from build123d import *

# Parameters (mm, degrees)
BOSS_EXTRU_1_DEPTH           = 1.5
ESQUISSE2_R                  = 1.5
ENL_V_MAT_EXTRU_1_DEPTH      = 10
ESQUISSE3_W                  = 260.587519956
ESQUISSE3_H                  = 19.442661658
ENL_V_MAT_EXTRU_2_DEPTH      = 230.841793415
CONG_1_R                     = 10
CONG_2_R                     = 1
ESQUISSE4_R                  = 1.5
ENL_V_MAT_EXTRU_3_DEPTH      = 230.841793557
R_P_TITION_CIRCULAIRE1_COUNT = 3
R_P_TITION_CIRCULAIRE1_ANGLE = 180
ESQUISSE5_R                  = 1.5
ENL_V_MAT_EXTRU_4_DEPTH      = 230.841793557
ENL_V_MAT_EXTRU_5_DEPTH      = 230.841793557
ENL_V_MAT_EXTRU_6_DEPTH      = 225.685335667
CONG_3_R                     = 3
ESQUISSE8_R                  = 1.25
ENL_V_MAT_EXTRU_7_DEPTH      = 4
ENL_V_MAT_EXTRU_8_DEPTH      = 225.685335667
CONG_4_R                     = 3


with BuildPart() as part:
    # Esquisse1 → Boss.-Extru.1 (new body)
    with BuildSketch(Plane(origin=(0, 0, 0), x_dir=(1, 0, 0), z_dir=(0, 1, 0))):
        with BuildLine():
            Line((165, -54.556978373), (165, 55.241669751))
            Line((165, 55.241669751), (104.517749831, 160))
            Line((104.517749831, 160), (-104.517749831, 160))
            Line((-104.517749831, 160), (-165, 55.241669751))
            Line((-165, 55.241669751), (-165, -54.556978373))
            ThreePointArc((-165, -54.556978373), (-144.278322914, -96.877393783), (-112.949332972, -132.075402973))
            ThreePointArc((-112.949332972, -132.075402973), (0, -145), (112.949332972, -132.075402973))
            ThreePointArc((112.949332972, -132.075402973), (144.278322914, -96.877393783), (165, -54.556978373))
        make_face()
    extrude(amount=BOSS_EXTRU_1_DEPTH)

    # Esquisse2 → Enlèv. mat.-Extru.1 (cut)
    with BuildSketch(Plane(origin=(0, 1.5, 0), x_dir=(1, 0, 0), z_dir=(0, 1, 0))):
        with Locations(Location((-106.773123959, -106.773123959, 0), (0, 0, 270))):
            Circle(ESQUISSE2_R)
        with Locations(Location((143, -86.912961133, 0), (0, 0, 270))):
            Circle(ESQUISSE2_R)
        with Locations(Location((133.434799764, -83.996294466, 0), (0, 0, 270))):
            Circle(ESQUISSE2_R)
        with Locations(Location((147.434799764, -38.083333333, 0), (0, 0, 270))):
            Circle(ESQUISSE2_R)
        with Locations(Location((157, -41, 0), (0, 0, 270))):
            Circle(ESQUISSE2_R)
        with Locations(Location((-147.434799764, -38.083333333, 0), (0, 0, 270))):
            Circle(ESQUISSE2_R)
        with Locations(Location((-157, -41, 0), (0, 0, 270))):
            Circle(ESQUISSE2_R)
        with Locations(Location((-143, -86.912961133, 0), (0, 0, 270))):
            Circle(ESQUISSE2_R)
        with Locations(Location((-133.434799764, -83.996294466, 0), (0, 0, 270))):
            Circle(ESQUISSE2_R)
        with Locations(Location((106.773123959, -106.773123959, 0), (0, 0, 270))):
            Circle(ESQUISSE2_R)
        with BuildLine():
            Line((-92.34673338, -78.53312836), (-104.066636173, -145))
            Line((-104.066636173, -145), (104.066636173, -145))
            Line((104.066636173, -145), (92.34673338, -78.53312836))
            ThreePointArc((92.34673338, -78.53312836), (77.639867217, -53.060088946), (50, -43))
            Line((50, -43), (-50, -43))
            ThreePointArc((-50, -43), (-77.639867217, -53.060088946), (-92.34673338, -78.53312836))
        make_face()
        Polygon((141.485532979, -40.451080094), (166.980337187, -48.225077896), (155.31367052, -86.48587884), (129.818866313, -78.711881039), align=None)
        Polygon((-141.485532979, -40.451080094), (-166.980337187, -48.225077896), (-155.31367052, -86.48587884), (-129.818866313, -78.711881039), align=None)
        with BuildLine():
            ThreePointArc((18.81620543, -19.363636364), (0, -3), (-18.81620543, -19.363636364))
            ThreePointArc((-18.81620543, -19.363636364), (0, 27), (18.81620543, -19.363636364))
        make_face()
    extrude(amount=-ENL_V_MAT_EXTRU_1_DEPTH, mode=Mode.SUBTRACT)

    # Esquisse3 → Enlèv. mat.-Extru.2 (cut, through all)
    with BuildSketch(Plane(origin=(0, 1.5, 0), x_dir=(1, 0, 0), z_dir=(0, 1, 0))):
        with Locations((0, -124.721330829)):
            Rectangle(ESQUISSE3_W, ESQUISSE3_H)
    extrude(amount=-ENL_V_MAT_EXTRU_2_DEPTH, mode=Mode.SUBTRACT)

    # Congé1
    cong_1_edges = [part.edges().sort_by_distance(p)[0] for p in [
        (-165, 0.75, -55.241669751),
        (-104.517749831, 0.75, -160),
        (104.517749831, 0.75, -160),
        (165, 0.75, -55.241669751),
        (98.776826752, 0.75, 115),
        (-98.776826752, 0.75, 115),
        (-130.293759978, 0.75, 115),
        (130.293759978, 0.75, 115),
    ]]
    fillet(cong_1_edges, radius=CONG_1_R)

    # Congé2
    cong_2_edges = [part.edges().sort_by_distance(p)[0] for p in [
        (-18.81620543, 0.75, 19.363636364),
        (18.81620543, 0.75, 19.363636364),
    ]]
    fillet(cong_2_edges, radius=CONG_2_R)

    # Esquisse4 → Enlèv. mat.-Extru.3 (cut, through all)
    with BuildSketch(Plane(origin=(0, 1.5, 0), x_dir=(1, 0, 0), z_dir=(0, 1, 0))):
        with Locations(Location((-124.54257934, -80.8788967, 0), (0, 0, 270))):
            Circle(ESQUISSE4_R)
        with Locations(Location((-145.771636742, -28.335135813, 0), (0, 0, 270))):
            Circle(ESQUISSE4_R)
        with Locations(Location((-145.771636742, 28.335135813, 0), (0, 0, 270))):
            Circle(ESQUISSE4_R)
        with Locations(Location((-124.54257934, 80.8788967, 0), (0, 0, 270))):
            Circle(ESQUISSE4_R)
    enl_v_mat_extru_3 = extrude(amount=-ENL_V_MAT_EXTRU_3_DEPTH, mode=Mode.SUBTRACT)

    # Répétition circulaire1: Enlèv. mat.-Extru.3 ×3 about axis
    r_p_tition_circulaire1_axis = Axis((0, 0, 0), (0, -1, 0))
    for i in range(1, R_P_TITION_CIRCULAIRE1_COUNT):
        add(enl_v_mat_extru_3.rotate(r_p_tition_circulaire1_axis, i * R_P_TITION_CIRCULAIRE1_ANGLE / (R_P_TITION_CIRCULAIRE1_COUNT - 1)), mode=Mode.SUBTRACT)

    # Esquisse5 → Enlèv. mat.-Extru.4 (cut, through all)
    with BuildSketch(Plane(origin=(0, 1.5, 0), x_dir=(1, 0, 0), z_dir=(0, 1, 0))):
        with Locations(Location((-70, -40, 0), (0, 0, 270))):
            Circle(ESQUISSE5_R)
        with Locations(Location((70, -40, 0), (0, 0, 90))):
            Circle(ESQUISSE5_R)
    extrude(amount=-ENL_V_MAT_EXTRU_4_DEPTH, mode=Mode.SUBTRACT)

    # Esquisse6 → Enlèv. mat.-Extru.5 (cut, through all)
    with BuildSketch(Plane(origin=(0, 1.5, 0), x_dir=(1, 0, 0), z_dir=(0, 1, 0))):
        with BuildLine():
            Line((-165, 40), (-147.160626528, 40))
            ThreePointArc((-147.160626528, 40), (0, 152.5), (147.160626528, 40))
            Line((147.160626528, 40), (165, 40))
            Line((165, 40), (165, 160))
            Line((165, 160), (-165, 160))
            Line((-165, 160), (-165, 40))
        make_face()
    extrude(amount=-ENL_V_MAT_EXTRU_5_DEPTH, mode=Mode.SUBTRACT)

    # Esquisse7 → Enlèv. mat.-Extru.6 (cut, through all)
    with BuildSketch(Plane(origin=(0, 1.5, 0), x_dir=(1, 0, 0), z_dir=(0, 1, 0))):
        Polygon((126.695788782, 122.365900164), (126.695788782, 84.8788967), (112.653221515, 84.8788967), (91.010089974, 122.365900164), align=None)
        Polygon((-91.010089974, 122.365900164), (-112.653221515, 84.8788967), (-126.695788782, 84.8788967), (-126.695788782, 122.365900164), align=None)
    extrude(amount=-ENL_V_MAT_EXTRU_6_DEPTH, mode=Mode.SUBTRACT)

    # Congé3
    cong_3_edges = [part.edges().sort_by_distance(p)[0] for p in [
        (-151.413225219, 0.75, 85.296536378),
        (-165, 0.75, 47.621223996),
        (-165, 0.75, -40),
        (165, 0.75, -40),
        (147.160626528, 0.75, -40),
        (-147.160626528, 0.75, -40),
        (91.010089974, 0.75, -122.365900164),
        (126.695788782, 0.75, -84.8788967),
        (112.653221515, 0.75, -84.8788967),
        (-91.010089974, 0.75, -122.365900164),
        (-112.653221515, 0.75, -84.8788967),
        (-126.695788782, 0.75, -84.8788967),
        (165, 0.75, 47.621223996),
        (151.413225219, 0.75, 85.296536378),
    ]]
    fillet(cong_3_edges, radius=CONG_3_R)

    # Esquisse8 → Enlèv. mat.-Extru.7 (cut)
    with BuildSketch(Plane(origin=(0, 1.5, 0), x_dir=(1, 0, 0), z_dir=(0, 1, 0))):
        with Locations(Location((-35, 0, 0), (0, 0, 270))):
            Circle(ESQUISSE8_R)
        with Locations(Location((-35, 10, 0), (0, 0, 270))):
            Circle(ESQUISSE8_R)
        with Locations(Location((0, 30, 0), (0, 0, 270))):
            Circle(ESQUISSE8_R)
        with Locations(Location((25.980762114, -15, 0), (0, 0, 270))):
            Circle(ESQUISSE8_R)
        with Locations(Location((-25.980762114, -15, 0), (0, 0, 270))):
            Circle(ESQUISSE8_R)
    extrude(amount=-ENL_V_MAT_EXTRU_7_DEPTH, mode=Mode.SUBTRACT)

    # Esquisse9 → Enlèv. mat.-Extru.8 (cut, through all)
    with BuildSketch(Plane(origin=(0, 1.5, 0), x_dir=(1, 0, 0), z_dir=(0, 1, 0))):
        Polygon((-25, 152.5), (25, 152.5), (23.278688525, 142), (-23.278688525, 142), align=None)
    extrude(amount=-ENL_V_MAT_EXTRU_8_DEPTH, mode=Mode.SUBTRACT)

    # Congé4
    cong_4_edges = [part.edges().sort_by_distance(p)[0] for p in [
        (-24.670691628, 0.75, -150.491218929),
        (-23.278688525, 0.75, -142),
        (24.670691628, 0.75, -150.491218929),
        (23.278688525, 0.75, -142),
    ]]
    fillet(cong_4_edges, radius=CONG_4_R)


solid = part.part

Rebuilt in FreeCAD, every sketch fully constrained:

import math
import FreeCAD as App
import Part
import Sketcher
from FreeCAD import Vector
Q = App.Units.Quantity


def edges_at(feature, points):
    """Names of the edges that pass closest to the given points."""
    edges = feature.Shape.Edges
    near = lambda p: min(range(len(edges)), key=lambda i: edges[i].distToShape(Part.Vertex(*p))[0])
    return sorted({f"Edge{near(p) + 1}" for p in points})


def add_polygon(sketch, points):
    """Adds a closed chain of lines whose ends are joined by coincident constraints."""
    first, n = sketch.GeometryCount, len(points)
    for a, b in zip(points, points[1:] + points[:1]):
        sketch.addGeometry(Part.LineSegment(App.Vector(*a, 0), App.Vector(*b, 0)), False)
    for i in range(n):
        sketch.addConstraint(Sketcher.Constraint("Coincident", first + i, 2, first + (i + 1) % n, 1))

doc = App.newDocument("Part")
body = doc.addObject("PartDesign::Body", "Body")

# Sketch on XZ plane
sketch1 = doc.addObject("Sketcher::SketchObject", "Sketch")
body.addObject(sketch1)
sketch1.AttachmentSupport = (doc.XZ_Plane, [""])
sketch1.MapMode = "FlatFace"
sketch1.addGeometry(Part.LineSegment(Vector(165, 55, 0), Vector(165, -55, 0)), False)
sketch1.addGeometry(Part.LineSegment(Vector(165, -55, 0), Vector(105, -160, 0)), False)
sketch1.addGeometry(Part.LineSegment(Vector(105, -160, 0), Vector(-105, -160, 0)), False)
sketch1.addGeometry(Part.LineSegment(Vector(-105, -160, 0), Vector(-165, -55, 0)), False)
sketch1.addGeometry(Part.LineSegment(Vector(-165, -55, 0), Vector(-165, 55, 0)), False)
sketch1.addGeometry(Part.ArcOfCircle(Part.Circle(Vector(0, 0, 0), Vector(0, 0, 1), 174), math.radians(131), math.radians(162)), False)
sketch1.addGeometry(Part.ArcOfCircle(Part.Circle(Vector(0, -355, 0), Vector(0, 0, 1), 500), math.radians(77), math.radians(103)), False)
sketch1.addGeometry(Part.ArcOfCircle(Part.Circle(Vector(0, 0, 0), Vector(0, 0, 1), 174), math.radians(18), math.radians(49)), False)
sketch1.addConstraint(Sketcher.Constraint("Coincident", 0, 2, 1, 1))
sketch1.addConstraint(Sketcher.Constraint("Coincident", 1, 2, 2, 1))
sketch1.addConstraint(Sketcher.Constraint("Coincident", 2, 2, 3, 1))
sketch1.addConstraint(Sketcher.Constraint("Coincident", 3, 2, 4, 1))
sketch1.addConstraint(Sketcher.Constraint("Coincident", 4, 2, 5, 2))
sketch1.addConstraint(Sketcher.Constraint("Coincident", 5, 1, 6, 2))
sketch1.addConstraint(Sketcher.Constraint("Coincident", 6, 1, 7, 2))
sketch1.addConstraint(Sketcher.Constraint("Coincident", 7, 1, 0, 1))
sketch1.addConstraint(Sketcher.Constraint("Vertical", 0))
sketch1.addConstraint(Sketcher.Constraint("Horizontal", 2))
sketch1.addConstraint(Sketcher.Constraint("Vertical", 4))
sketch1.addConstraint(Sketcher.Constraint("Coincident", 5, 3, -1, 1))
sketch1.addConstraint(Sketcher.Constraint("Coincident", 7, 3, -1, 1))
sketch1.addConstraint(Sketcher.Constraint("Equal", 5, 7))
sketch1.addConstraint(Sketcher.Constraint("Symmetric", 0, 2, 3, 2, -2))
sketch1.addConstraint(Sketcher.Constraint("PointOnObject", 6, 3, -2))
sketch1.addConstraint(Sketcher.Constraint("Equal", 1, 3))
sketch1.addConstraint(Sketcher.Constraint("Radius", 6, Q("500 mm")))
sketch1.addConstraint(Sketcher.Constraint("Angle", 1, Q("-120 deg")))
sketch1.addConstraint(Sketcher.Constraint("DistanceY", 6, 3, -1, 1, Q("355 mm")))
sketch1.addConstraint(Sketcher.Constraint("DistanceX", -1, 1, 0, 2, Q("165 mm")))
sketch1.addConstraint(Sketcher.Constraint("DistanceY", 1, 2, -1, 1, Q("160 mm")))
sketch1.addConstraint(Sketcher.Constraint("DistanceX", 2, 2, 2, 1, Q("209.0355 mm")))
sketch1.addConstraint(Sketcher.Constraint("Radius", 5, Q("173.785684 mm")))
pad1 = doc.addObject("PartDesign::Pad", "Pad")
body.addObject(pad1)
pad1.Profile = sketch1
pad1.Length = 1.5
pad1.Reversed = True

# Sketch on XZ plane
sketch2 = doc.addObject("Sketcher::SketchObject", "Sketch001")
body.addObject(sketch2)
sketch2.AttachmentSupport = (doc.XZ_Plane, [""])
sketch2.MapMode = "FlatFace"
sketch2.AttachmentOffset = App.Placement(Vector(0, 0, -1.5), App.Rotation())
sketch2.addGeometry(Part.Circle(Vector(-106.8, 106.8, 0), Vector(0, 0, 1), 1.5), False)  # 0
sketch2.addGeometry(Part.Circle(Vector(143, 86.9, 0), Vector(0, 0, 1), 1.5), False)  # 1
sketch2.addGeometry(Part.Circle(Vector(133.4, 84, 0), Vector(0, 0, 1), 1.5), False)  # 2
sketch2.addGeometry(Part.Circle(Vector(147.4, 38.1, 0), Vector(0, 0, 1), 1.5), False)  # 3
sketch2.addGeometry(Part.Circle(Vector(157, 41, 0), Vector(0, 0, 1), 1.5), False)  # 4
sketch2.addGeometry(Part.Circle(Vector(-147.4, 38.1, 0), Vector(0, 0, 1), 1.5), False)  # 5
sketch2.addGeometry(Part.Circle(Vector(-157, 41, 0), Vector(0, 0, 1), 1.5), False)  # 6
sketch2.addGeometry(Part.Circle(Vector(-143, 86.9, 0), Vector(0, 0, 1), 1.5), False)  # 7
sketch2.addGeometry(Part.Circle(Vector(-133.4, 84, 0), Vector(0, 0, 1), 1.5), False)  # 8
sketch2.addGeometry(Part.Circle(Vector(106.8, 106.8, 0), Vector(0, 0, 1), 1.5), False)  # 9
sketch2.addGeometry(Part.LineSegment(Vector(-92.3, 78.5, 0), Vector(-104.1, 145, 0)), False)  # 10
sketch2.addGeometry(Part.LineSegment(Vector(-104.1, 145, 0), Vector(104.1, 145, 0)), False)  # 11
sketch2.addGeometry(Part.LineSegment(Vector(104.1, 145, 0), Vector(92.3, 78.5, 0)), False)  # 12
sketch2.addGeometry(Part.ArcOfCircle(Part.Circle(Vector(50, 86, 0), Vector(0, 0, 1), 43), math.radians(-90), math.radians(-10)), False)  # 13
sketch2.addGeometry(Part.LineSegment(Vector(50, 43, 0), Vector(-50, 43, 0)), False)  # 14
sketch2.addGeometry(Part.ArcOfCircle(Part.Circle(Vector(-50, 86, 0), Vector(0, 0, 1), 43), math.radians(-170), math.radians(-90)), False)  # 15
add_polygon(sketch2, [(167, 48.2), (141.5, 40.5), (129.8, 78.7), (155.3, 86.5)])  # lines 16-19
add_polygon(sketch2, [(-141.5, 40.5), (-167, 48.2), (-155.3, 86.5), (-129.8, 78.7)])  # lines 20-23
sketch2.addGeometry(Part.ArcOfCircle(Part.Circle(Vector(0, 22, 0), Vector(0, 0, 1), 19), math.radians(-172), math.radians(-8)), False)  # 24
sketch2.addGeometry(Part.ArcOfCircle(Part.Circle(Vector(0, 0, 0), Vector(0, 0, 1), 27), math.radians(134), math.radians(406)), False)  # 25
sketch2.addConstraint(Sketcher.Constraint("Coincident", 10, 2, 11, 1))
sketch2.addConstraint(Sketcher.Constraint("Coincident", 11, 2, 12, 1))
sketch2.addConstraint(Sketcher.Constraint("Tangent", 12, 2, 13, 2))
sketch2.addConstraint(Sketcher.Constraint("Tangent", 13, 1, 14, 1))
sketch2.addConstraint(Sketcher.Constraint("Tangent", 14, 2, 15, 2))
sketch2.addConstraint(Sketcher.Constraint("Tangent", 15, 1, 10, 1))
sketch2.addConstraint(Sketcher.Constraint("Coincident", 24, 1, 25, 1))
sketch2.addConstraint(Sketcher.Constraint("Coincident", 25, 2, 24, 2))
sketch2.addConstraint(Sketcher.Constraint("Horizontal", 11))
sketch2.addConstraint(Sketcher.Constraint("Horizontal", 14))
sketch2.addConstraint(Sketcher.Constraint("Coincident", 25, 3, -1, 1))
sketch2.addConstraint(Sketcher.Constraint("Equal", 0, 1))
sketch2.addConstraint(Sketcher.Constraint("Equal", 1, 2))
sketch2.addConstraint(Sketcher.Constraint("Equal", 2, 3))
sketch2.addConstraint(Sketcher.Constraint("Equal", 3, 4))
sketch2.addConstraint(Sketcher.Constraint("Equal", 4, 5))
sketch2.addConstraint(Sketcher.Constraint("Equal", 5, 6))
sketch2.addConstraint(Sketcher.Constraint("Equal", 6, 7))
sketch2.addConstraint(Sketcher.Constraint("Equal", 7, 8))
sketch2.addConstraint(Sketcher.Constraint("Equal", 8, 9))
sketch2.addConstraint(Sketcher.Constraint("Equal", 13, 15))
sketch2.addConstraint(Sketcher.Constraint("Symmetric", 3, 3, 5, 3, -2))
sketch2.addConstraint(Sketcher.Constraint("Symmetric", 4, 3, 6, 3, -2))
sketch2.addConstraint(Sketcher.Constraint("Symmetric", 1, 3, 7, 3, -2))
sketch2.addConstraint(Sketcher.Constraint("Symmetric", 2, 3, 8, 3, -2))
sketch2.addConstraint(Sketcher.Constraint("Symmetric", 0, 3, 9, 3, -2))
sketch2.addConstraint(Sketcher.Constraint("Symmetric", 12, 2, 15, 1, -2))
sketch2.addConstraint(Sketcher.Constraint("Symmetric", 19, 2, 20, 2, -2))
sketch2.addConstraint(Sketcher.Constraint("Symmetric", 18, 2, 21, 2, -2))
sketch2.addConstraint(Sketcher.Constraint("Symmetric", 17, 2, 22, 2, -2))
sketch2.addConstraint(Sketcher.Constraint("Symmetric", 16, 2, 23, 2, -2))
sketch2.addConstraint(Sketcher.Constraint("PointOnObject", 24, 3, -2))
sketch2.addConstraint(Sketcher.Constraint("Perpendicular", 16, 17))
sketch2.addConstraint(Sketcher.Constraint("Perpendicular", 17, 18))
sketch2.addConstraint(Sketcher.Constraint("Perpendicular", 18, 19))
sketch2.addConstraint(Sketcher.Constraint("Diameter", 0, Q("3 mm")))
sketch2.addConstraint(Sketcher.Constraint("Radius", 13, Q("43 mm")))
sketch2.addConstraint(Sketcher.Constraint("Radius", 24, Q("19 mm")))
sketch2.addConstraint(Sketcher.Constraint("Radius", 25, Q("27 mm")))
sketch2.addConstraint(Sketcher.Constraint("DistanceX", 14, 2, 14, 1, Q("100 mm")))
sketch2.addConstraint(Sketcher.Constraint("Angle", 10, Q("100 deg")))
sketch2.addConstraint(Sketcher.Constraint("Distance", 17, Q("40 mm")))
sketch2.addConstraint(Sketcher.Constraint("DistanceX", -1, 1, 1, 3, Q("143 mm")))
sketch2.addConstraint(Sketcher.Constraint("DistanceX", -1, 1, 4, 3, Q("157 mm")))
sketch2.addConstraint(Sketcher.Constraint("DistanceY", -1, 1, 4, 3, Q("41 mm")))
sketch2.addConstraint(Sketcher.Constraint("DistanceY", -1, 1, 13, 3, Q("86 mm")))
sketch2.addConstraint(Sketcher.Constraint("DistanceY", -1, 1, 24, 3, Q("22 mm")))
sketch2.addConstraint(Sketcher.Constraint("DistanceY", -1, 1, 10, 2, Q("145 mm")))
sketch2.addConstraint(Sketcher.Constraint("DistanceX", 2, 3, 3, 3, Q("14 mm")))
sketch2.addConstraint(Sketcher.Constraint("DistanceX", -1, 1, 2, 3, Q("133.4348 mm")))
sketch2.addConstraint(Sketcher.Constraint("DistanceX", 12, 2, 16, 2, Q("49.1388 mm")))
sketch2.addConstraint(Sketcher.Constraint("DistanceY", 16, 2, 17, 2, Q("38.260801 mm")))
sketch2.addConstraint(Sketcher.Constraint("DistanceY", 16, 2, 18, 2, Q("46.034799 mm")))
sketch2.addConstraint(Sketcher.Constraint("DistanceY", -1, 1, 1, 3, Q("86.912961 mm")))
sketch2.addConstraint(Sketcher.Constraint("DistanceY", -1, 1, 16, 2, Q("40.45108 mm")))
sketch2.addConstraint(Sketcher.Constraint("DistanceY", 2, 3, 0, 3, Q("22.776829 mm")))
sketch2.addConstraint(Sketcher.Constraint("DistanceY", 3, 3, 2, 3, Q("45.912961 mm")))
sketch2.addConstraint(Sketcher.Constraint("DistanceX", 12, 2, 9, 3, Q("14.426391 mm")))
sketch2.addConstraint(Sketcher.Constraint("DistanceY", -1, 1, 0, 3, Q("106.773124 mm")))
pocket1 = doc.addObject("PartDesign::Pocket", "Pocket")
body.addObject(pocket1)
pocket1.Profile = sketch2
pocket1.Length = 10
pocket1.Reversed = True

# Sketch on XZ plane
sketch3 = doc.addObject("Sketcher::SketchObject", "Sketch002")
body.addObject(sketch3)
sketch3.AttachmentSupport = (doc.XZ_Plane, [""])
sketch3.MapMode = "FlatFace"
sketch3.AttachmentOffset = App.Placement(Vector(0, 0, -1.5), App.Rotation())
add_polygon(sketch3, [(-130, 115), (-130, 134), (130, 134), (130, 115)])  # lines 0-3
sketch3.addConstraint(Sketcher.Constraint("Vertical", 0))
sketch3.addConstraint(Sketcher.Constraint("Horizontal", 1))
sketch3.addConstraint(Sketcher.Constraint("Vertical", 2))
sketch3.addConstraint(Sketcher.Constraint("Horizontal", 3))
sketch3.addConstraint(Sketcher.Constraint("DistanceY", -1, 1, 2, 2, Q("115 mm")))
sketch3.addConstraint(Sketcher.Constraint("DistanceX", 1, 1, 1, 2, Q("260.58752 mm")))
sketch3.addConstraint(Sketcher.Constraint("DistanceY", 0, 1, 0, 2, Q("19.442662 mm")))
sketch3.addConstraint(Sketcher.Constraint("DistanceX", 0, 2, -1, 1, Q("130.29376 mm")))
pocket2 = doc.addObject("PartDesign::Pocket", "Pocket001")
body.addObject(pocket2)
pocket2.Profile = sketch3
pocket2.Type = "ThroughAll"
pocket2.Reversed = True
doc.recompute()

fillet = doc.addObject("PartDesign::Fillet", "Fillet")
body.addObject(fillet)
fillet.Base = (pocket2, edges_at(pocket2, [
    (-165, 0.75, -55.242),
    (-104.518, 0.75, -160),
    (104.518, 0.75, -160),
    (165, 0.75, -55.242),
    (98.777, 0.75, 115),
    (-98.777, 0.75, 115),
    (-130.294, 0.75, 115),
    (130.294, 0.75, 115),
]))
fillet.Radius = 10
doc.recompute()

fillet2 = doc.addObject("PartDesign::Fillet", "Fillet001")
body.addObject(fillet2)
fillet2.Base = (fillet, edges_at(fillet, [(-18.816, 0.75, 19.364), (18.816, 0.75, 19.364)]))
fillet2.Radius = 1

# Sketch on XZ plane
sketch4 = doc.addObject("Sketcher::SketchObject", "Sketch003")
body.addObject(sketch4)
sketch4.AttachmentSupport = (doc.XZ_Plane, [""])
sketch4.MapMode = "FlatFace"
sketch4.AttachmentOffset = App.Placement(Vector(0, 0, -1.5), App.Rotation())
sketch4.addGeometry(Part.Circle(Vector(-124.5, 80.9, 0), Vector(0, 0, 1), 1.5), False)
sketch4.addGeometry(Part.Circle(Vector(-145.8, 28.3, 0), Vector(0, 0, 1), 1.5), False)
sketch4.addGeometry(Part.Circle(Vector(-145.8, -28.3, 0), Vector(0, 0, 1), 1.5), False)
sketch4.addGeometry(Part.Circle(Vector(-124.5, -80.9, 0), Vector(0, 0, 1), 1.5), False)
sketch4.addConstraint(Sketcher.Constraint("Equal", 0, 1))
sketch4.addConstraint(Sketcher.Constraint("Equal", 1, 2))
sketch4.addConstraint(Sketcher.Constraint("Equal", 2, 3))
sketch4.addConstraint(Sketcher.Constraint("Symmetric", 1, 3, 2, 3, -1))
sketch4.addConstraint(Sketcher.Constraint("Symmetric", 0, 3, 3, 3, -1))
sketch4.addConstraint(Sketcher.Constraint("Diameter", 0, Q("3 mm")))
sketch4.addConstraint(Sketcher.Constraint("DistanceX", 0, 3, -1, 1, Q("124.542579 mm")))
sketch4.addConstraint(Sketcher.Constraint("DistanceY", 1, 3, 0, 3, Q("52.543761 mm")))
sketch4.addConstraint(Sketcher.Constraint("DistanceY", 2, 3, 1, 3, Q("56.670272 mm")))
sketch4.addConstraint(Sketcher.Constraint("DistanceX", 1, 3, -1, 1, Q("145.771637 mm")))
pocket3 = doc.addObject("PartDesign::Pocket", "Pocket002")
body.addObject(pocket3)
pocket3.Profile = sketch4
pocket3.Type = "ThroughAll"
pocket3.Reversed = True
doc.recompute()

polarpattern = doc.addObject("PartDesign::PolarPattern", "PolarPattern")
body.addObject(polarpattern)
polarpattern.Originals = [pocket3]
polarpattern.Axis = (doc.Y_Axis, [""])
polarpattern.Angle = 180
polarpattern.Occurrences = 3
polarpattern.Reversed = True
body.Tip = polarpattern

# Sketch on XZ plane
sketch5 = doc.addObject("Sketcher::SketchObject", "Sketch004")
body.addObject(sketch5)
sketch5.AttachmentSupport = (doc.XZ_Plane, [""])
sketch5.MapMode = "FlatFace"
sketch5.AttachmentOffset = App.Placement(Vector(0, 0, -1.5), App.Rotation())
sketch5.addGeometry(Part.Circle(Vector(-70, 40, 0), Vector(0, 0, 1), 1.5), False)
sketch5.addGeometry(Part.Circle(Vector(70, 40, 0), Vector(0, 0, 1), 1.5), False)
sketch5.addConstraint(Sketcher.Constraint("Equal", 0, 1))
sketch5.addConstraint(Sketcher.Constraint("Symmetric", 0, 3, 1, 3, -2))
sketch5.addConstraint(Sketcher.Constraint("Diameter", 0, Q("3 mm")))
sketch5.addConstraint(Sketcher.Constraint("DistanceX", 0, 3, -1, 1, Q("70 mm")))
sketch5.addConstraint(Sketcher.Constraint("DistanceY", -1, 1, 0, 3, Q("40 mm")))
pocket4 = doc.addObject("PartDesign::Pocket", "Pocket003")
body.addObject(pocket4)
pocket4.Profile = sketch5
pocket4.Type = "ThroughAll"
pocket4.Reversed = True

# Sketch on XZ plane
sketch6 = doc.addObject("Sketcher::SketchObject", "Sketch005")
body.addObject(sketch6)
sketch6.AttachmentSupport = (doc.XZ_Plane, [""])
sketch6.MapMode = "FlatFace"
sketch6.AttachmentOffset = App.Placement(Vector(0, 0, -1.5), App.Rotation())
sketch6.addGeometry(Part.LineSegment(Vector(-165, -40, 0), Vector(-147, -40, 0)), False)
sketch6.addGeometry(Part.ArcOfCircle(Part.Circle(Vector(0, 0, 0), Vector(0, 0, 1), 153), math.radians(-165), math.radians(-15)), False)
sketch6.addGeometry(Part.LineSegment(Vector(147, -40, 0), Vector(165, -40, 0)), False)
sketch6.addGeometry(Part.LineSegment(Vector(165, -40, 0), Vector(165, -160, 0)), False)
sketch6.addGeometry(Part.LineSegment(Vector(165, -160, 0), Vector(-165, -160, 0)), False)
sketch6.addGeometry(Part.LineSegment(Vector(-165, -160, 0), Vector(-165, -40, 0)), False)
sketch6.addConstraint(Sketcher.Constraint("Coincident", 0, 2, 1, 1))
sketch6.addConstraint(Sketcher.Constraint("Coincident", 1, 2, 2, 1))
sketch6.addConstraint(Sketcher.Constraint("Coincident", 2, 2, 3, 1))
sketch6.addConstraint(Sketcher.Constraint("Coincident", 3, 2, 4, 1))
sketch6.addConstraint(Sketcher.Constraint("Coincident", 4, 2, 5, 1))
sketch6.addConstraint(Sketcher.Constraint("Coincident", 5, 2, 0, 1))
sketch6.addConstraint(Sketcher.Constraint("Horizontal", 0))
sketch6.addConstraint(Sketcher.Constraint("Horizontal", 2))
sketch6.addConstraint(Sketcher.Constraint("Vertical", 3))
sketch6.addConstraint(Sketcher.Constraint("Horizontal", 4))
sketch6.addConstraint(Sketcher.Constraint("Vertical", 5))
sketch6.addConstraint(Sketcher.Constraint("Coincident", 1, 3, -1, 1))
sketch6.addConstraint(Sketcher.Constraint("Symmetric", 2, 2, 5, 2, -2))
sketch6.addConstraint(Sketcher.Constraint("Radius", 1, Q("152.5 mm")))
sketch6.addConstraint(Sketcher.Constraint("DistanceX", 4, 2, 4, 1, Q("330 mm")))
sketch6.addConstraint(Sketcher.Constraint("DistanceY", 3, 2, 3, 1, Q("120 mm")))
sketch6.addConstraint(Sketcher.Constraint("DistanceY", 0, 2, -1, 1, Q("40 mm")))
pocket5 = doc.addObject("PartDesign::Pocket", "Pocket004")
body.addObject(pocket5)
pocket5.Profile = sketch6
pocket5.Type = "ThroughAll"
pocket5.Reversed = True

# Sketch on XZ plane
sketch7 = doc.addObject("Sketcher::SketchObject", "Sketch006")
body.addObject(sketch7)
sketch7.AttachmentSupport = (doc.XZ_Plane, [""])
sketch7.MapMode = "FlatFace"
sketch7.AttachmentOffset = App.Placement(Vector(0, 0, -1.5), App.Rotation())
add_polygon(sketch7, [(127, -85), (127, -122), (91, -122), (113, -85)])  # lines 0-3
add_polygon(sketch7, [(-113, -85), (-91, -122), (-127, -122), (-127, -85)])  # lines 4-7
sketch7.addConstraint(Sketcher.Constraint("Vertical", 0))
sketch7.addConstraint(Sketcher.Constraint("Horizontal", 1))
sketch7.addConstraint(Sketcher.Constraint("Horizontal", 3))
sketch7.addConstraint(Sketcher.Constraint("Horizontal", 5))
sketch7.addConstraint(Sketcher.Constraint("Vertical", 6))
sketch7.addConstraint(Sketcher.Constraint("Horizontal", 7))
sketch7.addConstraint(Sketcher.Constraint("Symmetric", 1, 2, 4, 2, -2))
sketch7.addConstraint(Sketcher.Constraint("Symmetric", 3, 2, 6, 2, -2))
sketch7.addConstraint(Sketcher.Constraint("Equal", 3, 7))
sketch7.addConstraint(Sketcher.Constraint("Angle", 2, Q("60 deg")))
sketch7.addConstraint(Sketcher.Constraint("DistanceX", 1, 2, 1, 1, Q("35.685699 mm")))
sketch7.addConstraint(Sketcher.Constraint("DistanceY", 0, 2, -1, 1, Q("122.3659 mm")))
sketch7.addConstraint(Sketcher.Constraint("DistanceX", 3, 1, 3, 2, Q("14.042567 mm")))
sketch7.addConstraint(Sketcher.Constraint("DistanceX", -1, 1, 0, 2, Q("126.695789 mm")))
pocket6 = doc.addObject("PartDesign::Pocket", "Pocket005")
body.addObject(pocket6)
pocket6.Profile = sketch7
pocket6.Type = "ThroughAll"
pocket6.Reversed = True
doc.recompute()

fillet3 = doc.addObject("PartDesign::Fillet", "Fillet002")
body.addObject(fillet3)
fillet3.Base = (pocket6, edges_at(pocket6, [
    (-151.413, 0.75, 85.297),
    (-165, 0.75, 47.621),
    (-165, 0.75, -40),
    (165, 0.75, -40),
    (147.161, 0.75, -40),
    (-147.161, 0.75, -40),
    (91.01, 0.75, -122.366),
    (126.696, 0.75, -84.879),
    (112.653, 0.75, -84.879),
    (-91.01, 0.75, -122.366),
    (-112.653, 0.75, -84.879),
    (-126.696, 0.75, -84.879),
    (165, 0.75, 47.621),
    (151.413, 0.75, 85.297),
]))
fillet3.Radius = 3

# Sketch on XZ plane
sketch8 = doc.addObject("Sketcher::SketchObject", "Sketch007")
body.addObject(sketch8)
sketch8.AttachmentSupport = (doc.XZ_Plane, [""])
sketch8.MapMode = "FlatFace"
sketch8.AttachmentOffset = App.Placement(Vector(0, 0, -1.5), App.Rotation())
sketch8.addGeometry(Part.Circle(Vector(-35, 0, 0), Vector(0, 0, 1), 1.2), False)
sketch8.addGeometry(Part.Circle(Vector(-35, -10, 0), Vector(0, 0, 1), 1.2), False)
sketch8.addGeometry(Part.Circle(Vector(0, -30, 0), Vector(0, 0, 1), 1.2), False)
sketch8.addGeometry(Part.Circle(Vector(26, 15, 0), Vector(0, 0, 1), 1.2), False)
sketch8.addGeometry(Part.Circle(Vector(-26, 15, 0), Vector(0, 0, 1), 1.2), False)
sketch8.addConstraint(Sketcher.Constraint("Equal", 0, 1))
sketch8.addConstraint(Sketcher.Constraint("Equal", 1, 2))
sketch8.addConstraint(Sketcher.Constraint("Equal", 2, 3))
sketch8.addConstraint(Sketcher.Constraint("Equal", 3, 4))
sketch8.addConstraint(Sketcher.Constraint("Symmetric", 3, 3, 4, 3, -2))
sketch8.addConstraint(Sketcher.Constraint("PointOnObject", 0, 3, -1))
sketch8.addConstraint(Sketcher.Constraint("PointOnObject", 2, 3, -2))
sketch8.addConstraint(Sketcher.Constraint("Vertical", 0, 3, 1, 3))
sketch8.addConstraint(Sketcher.Constraint("Diameter", 0, Q("2.5 mm")))
sketch8.addConstraint(Sketcher.Constraint("DistanceX", 0, 3, -1, 1, Q("35 mm")))
sketch8.addConstraint(Sketcher.Constraint("DistanceY", 1, 3, -1, 1, Q("10 mm")))
sketch8.addConstraint(Sketcher.Constraint("DistanceY", 2, 3, -1, 1, Q("30 mm")))
sketch8.addConstraint(Sketcher.Constraint("DistanceY", -1, 1, 3, 3, Q("15 mm")))
sketch8.addConstraint(Sketcher.Constraint("DistanceX", -1, 1, 3, 3, Q("25.980762 mm")))
pocket7 = doc.addObject("PartDesign::Pocket", "Pocket006")
body.addObject(pocket7)
pocket7.Profile = sketch8
pocket7.Length = 4
pocket7.Reversed = True

# Sketch on XZ plane
sketch9 = doc.addObject("Sketcher::SketchObject", "Sketch008")
body.addObject(sketch9)
sketch9.AttachmentSupport = (doc.XZ_Plane, [""])
sketch9.MapMode = "FlatFace"
sketch9.AttachmentOffset = App.Placement(Vector(0, 0, -1.5), App.Rotation())
add_polygon(sketch9, [(25, -152), (-25, -152), (-23, -142), (23, -142)])  # lines 0-3
sketch9.addConstraint(Sketcher.Constraint("Horizontal", 0))
sketch9.addConstraint(Sketcher.Constraint("Horizontal", 2))
sketch9.addConstraint(Sketcher.Constraint("Equal", 1, 3))
sketch9.addConstraint(Sketcher.Constraint("DistanceX", 0, 2, 0, 1, Q("50 mm")))
sketch9.addConstraint(Sketcher.Constraint("DistanceX", 0, 2, -1, 1, Q("25 mm")))
sketch9.addConstraint(Sketcher.Constraint("DistanceY", 1, 2, -1, 1, Q("142 mm")))
sketch9.addConstraint(Sketcher.Constraint("DistanceY", 0, 2, -1, 1, Q("152.5 mm")))
sketch9.addConstraint(Sketcher.Constraint("DistanceX", 2, 1, 2, 2, Q("46.557377 mm")))
pocket8 = doc.addObject("PartDesign::Pocket", "Pocket007")
body.addObject(pocket8)
pocket8.Profile = sketch9
pocket8.Type = "ThroughAll"
pocket8.Reversed = True
doc.recompute()

fillet4 = doc.addObject("PartDesign::Fillet", "Fillet003")
body.addObject(fillet4)
fillet4.Base = (pocket8, edges_at(pocket8, [
    (-24.671, 0.75, -150.491),
    (-23.279, 0.75, -142),
    (24.671, 0.75, -150.491),
    (23.279, 0.75, -142),
]))
fillet4.Radius = 3

doc.recompute()
